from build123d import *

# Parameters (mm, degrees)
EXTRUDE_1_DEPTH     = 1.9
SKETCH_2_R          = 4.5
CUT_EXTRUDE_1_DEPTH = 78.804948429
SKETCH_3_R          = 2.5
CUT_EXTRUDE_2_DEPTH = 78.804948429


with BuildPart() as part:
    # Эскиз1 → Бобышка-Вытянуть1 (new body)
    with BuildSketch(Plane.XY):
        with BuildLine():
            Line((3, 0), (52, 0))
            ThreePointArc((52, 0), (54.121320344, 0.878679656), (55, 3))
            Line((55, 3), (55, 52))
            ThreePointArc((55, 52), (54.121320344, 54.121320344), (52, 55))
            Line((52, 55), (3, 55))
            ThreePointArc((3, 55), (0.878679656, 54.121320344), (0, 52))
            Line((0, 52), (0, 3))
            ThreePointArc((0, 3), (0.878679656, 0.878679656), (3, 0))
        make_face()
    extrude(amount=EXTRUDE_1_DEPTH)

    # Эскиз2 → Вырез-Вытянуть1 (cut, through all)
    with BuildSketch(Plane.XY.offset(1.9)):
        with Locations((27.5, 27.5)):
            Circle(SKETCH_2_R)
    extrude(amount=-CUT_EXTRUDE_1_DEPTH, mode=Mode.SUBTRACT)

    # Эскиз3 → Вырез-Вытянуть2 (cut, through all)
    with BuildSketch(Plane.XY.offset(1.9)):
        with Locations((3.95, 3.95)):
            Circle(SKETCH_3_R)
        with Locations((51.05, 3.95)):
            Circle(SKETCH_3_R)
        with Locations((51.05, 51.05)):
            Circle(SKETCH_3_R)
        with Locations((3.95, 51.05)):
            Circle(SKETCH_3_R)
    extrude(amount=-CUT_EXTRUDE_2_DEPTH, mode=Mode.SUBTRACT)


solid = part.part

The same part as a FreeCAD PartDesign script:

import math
import FreeCAD as App
import Part
import Sketcher
from FreeCAD import Vector
Q = App.Units.Quantity

doc = App.newDocument("Part")
body = doc.addObject("PartDesign::Body", "Body")

# Sketch on XY plane
sketch1 = body.newObject("Sketcher::SketchObject", "Sketch")
sketch1.AttachmentSupport = (doc.getObject("XY_Plane"), [""])
sketch1.MapMode = "FlatFace"
sketch1.addGeometry([
    Part.LineSegment(Vector(3, 0, 0), Vector(52, 0, 0)),  # 0
    Part.ArcOfCircle(Part.Circle(Vector(52, 3, 0), Vector(0, 0, 1), 3), math.radians(-90), math.radians(0)),  # 1
    Part.LineSegment(Vector(55, 3, 0), Vector(55, 52, 0)),  # 2
    Part.ArcOfCircle(Part.Circle(Vector(52, 52, 0), Vector(0, 0, 1), 3), math.radians(0), math.radians(90)),  # 3
    Part.LineSegment(Vector(52, 55, 0), Vector(3, 55, 0)),  # 4
    Part.ArcOfCircle(Part.Circle(Vector(3, 52, 0), Vector(0, 0, 1), 3), math.radians(90), math.radians(180)),  # 5
    Part.LineSegment(Vector(0, 52, 0), Vector(0, 3, 0)),  # 6
    Part.ArcOfCircle(Part.Circle(Vector(3, 3, 0), Vector(0, 0, 1), 3), math.radians(180), math.radians(270)),  # 7
], False)
sketch1.addConstraint([
    Sketcher.Constraint("Tangent", 0, 2, 1, 1),
    Sketcher.Constraint("Tangent", 1, 2, 2, 1),
    Sketcher.Constraint("Tangent", 2, 2, 3, 1),
    Sketcher.Constraint("Tangent", 3, 2, 4, 1),
    Sketcher.Constraint("Tangent", 4, 2, 5, 1),
    Sketcher.Constraint("Tangent", 5, 2, 6, 1),
    Sketcher.Constraint("Tangent", 6, 2, 7, 1),
    Sketcher.Constraint("Tangent", 7, 2, 0, 1),
    Sketcher.Constraint("Horizontal", 0),
    Sketcher.Constraint("Vertical", 2),
    Sketcher.Constraint("Horizontal", 4),
    Sketcher.Constraint("Vertical", 6),
    Sketcher.Constraint("Equal", 1, 3),
    Sketcher.Constraint("Equal", 3, 5),
    Sketcher.Constraint("Equal", 5, 7),
    Sketcher.Constraint("PointOnObject", 0, 2, -1),
    Sketcher.Constraint("PointOnObject", 5, 2, -2),
    Sketcher.Constraint("Equal", 4, 2),
    Sketcher.Constraint("Radius", 1, Q("3 mm")),
    Sketcher.Constraint("DistanceX", 0, 1, 0, 2, Q("49 mm")),
])
pad1 = body.newObject("PartDesign::Pad", "Pad")
pad1.Profile = sketch1
pad1.Length = 1.9

# Sketch on XY plane
sketch2 = body.newObject("Sketcher::SketchObject", "Sketch001")
sketch2.AttachmentSupport = (doc.getObject("XY_Plane"), [""])
sketch2.MapMode = "FlatFace"
sketch2.AttachmentOffset = App.Placement(Vector(0, 0, 1.9), App.Rotation())
sketch2.addGeometry(Part.Circle(Vector(27.5, 27.5, 0), Vector(0, 0, 1), 4.5), False)
sketch2.addConstraint([
    Sketcher.Constraint("Diameter", 0, Q("9 mm")),
    Sketcher.Constraint("DistanceX", -1, 1, 0, 3, Q("27.5 mm")),
    Sketcher.Constraint("DistanceY", -1, 1, 0, 3, Q("27.5 mm")),
])
pocket1 = body.newObject("PartDesign::Pocket", "Pocket")
pocket1.Profile = sketch2
pocket1.Type = "ThroughAll"

# Sketch on XY plane
sketch3 = body.newObject("Sketcher::SketchObject", "Sketch002")
sketch3.AttachmentSupport = (doc.getObject("XY_Plane"), [""])
sketch3.MapMode = "FlatFace"
sketch3.AttachmentOffset = App.Placement(Vector(0, 0, 1.9), App.Rotation())
sketch3.addGeometry([
    Part.Circle(Vector(3.95, 3.95, 0), Vector(0, 0, 1), 2.5),
    Part.Circle(Vector(51.05, 3.95, 0), Vector(0, 0, 1), 2.5),
    Part.Circle(Vector(51.05, 51.05, 0), Vector(0, 0, 1), 2.5),
    Part.Circle(Vector(3.95, 51.05, 0), Vector(0, 0, 1), 2.5),
], False)
sketch3.addConstraint([
    Sketcher.Constraint("Equal", 0, 1),
    Sketcher.Constraint("Equal", 1, 2),
    Sketcher.Constraint("Equal", 2, 3),
    Sketcher.Constraint("Horizontal", 0, 3, 1, 3),
    Sketcher.Constraint("Horizontal", 2, 3, 3, 3),
    Sketcher.Constraint("Vertical", 1, 3, 2, 3),
    Sketcher.Constraint("Vertical", 0, 3, 3, 3),
    Sketcher.Constraint("Diameter", 0, Q("5 mm")),
    Sketcher.Constraint("DistanceX", 0, 3, 1, 3, Q("47.1 mm")),
    Sketcher.Constraint("DistanceY", 1, 3, 2, 3, Q("47.1 mm")),
    Sketcher.Constraint("DistanceX", -1, 1, 0, 3, Q("3.95 mm")),
    Sketcher.Constraint("DistanceY", -1, 1, 0, 3, Q("3.95 mm")),
])
pocket2 = body.newObject("PartDesign::Pocket", "Pocket001")
pocket2.Profile = sketch3
pocket2.Type = "ThroughAll"

doc.recompute()
